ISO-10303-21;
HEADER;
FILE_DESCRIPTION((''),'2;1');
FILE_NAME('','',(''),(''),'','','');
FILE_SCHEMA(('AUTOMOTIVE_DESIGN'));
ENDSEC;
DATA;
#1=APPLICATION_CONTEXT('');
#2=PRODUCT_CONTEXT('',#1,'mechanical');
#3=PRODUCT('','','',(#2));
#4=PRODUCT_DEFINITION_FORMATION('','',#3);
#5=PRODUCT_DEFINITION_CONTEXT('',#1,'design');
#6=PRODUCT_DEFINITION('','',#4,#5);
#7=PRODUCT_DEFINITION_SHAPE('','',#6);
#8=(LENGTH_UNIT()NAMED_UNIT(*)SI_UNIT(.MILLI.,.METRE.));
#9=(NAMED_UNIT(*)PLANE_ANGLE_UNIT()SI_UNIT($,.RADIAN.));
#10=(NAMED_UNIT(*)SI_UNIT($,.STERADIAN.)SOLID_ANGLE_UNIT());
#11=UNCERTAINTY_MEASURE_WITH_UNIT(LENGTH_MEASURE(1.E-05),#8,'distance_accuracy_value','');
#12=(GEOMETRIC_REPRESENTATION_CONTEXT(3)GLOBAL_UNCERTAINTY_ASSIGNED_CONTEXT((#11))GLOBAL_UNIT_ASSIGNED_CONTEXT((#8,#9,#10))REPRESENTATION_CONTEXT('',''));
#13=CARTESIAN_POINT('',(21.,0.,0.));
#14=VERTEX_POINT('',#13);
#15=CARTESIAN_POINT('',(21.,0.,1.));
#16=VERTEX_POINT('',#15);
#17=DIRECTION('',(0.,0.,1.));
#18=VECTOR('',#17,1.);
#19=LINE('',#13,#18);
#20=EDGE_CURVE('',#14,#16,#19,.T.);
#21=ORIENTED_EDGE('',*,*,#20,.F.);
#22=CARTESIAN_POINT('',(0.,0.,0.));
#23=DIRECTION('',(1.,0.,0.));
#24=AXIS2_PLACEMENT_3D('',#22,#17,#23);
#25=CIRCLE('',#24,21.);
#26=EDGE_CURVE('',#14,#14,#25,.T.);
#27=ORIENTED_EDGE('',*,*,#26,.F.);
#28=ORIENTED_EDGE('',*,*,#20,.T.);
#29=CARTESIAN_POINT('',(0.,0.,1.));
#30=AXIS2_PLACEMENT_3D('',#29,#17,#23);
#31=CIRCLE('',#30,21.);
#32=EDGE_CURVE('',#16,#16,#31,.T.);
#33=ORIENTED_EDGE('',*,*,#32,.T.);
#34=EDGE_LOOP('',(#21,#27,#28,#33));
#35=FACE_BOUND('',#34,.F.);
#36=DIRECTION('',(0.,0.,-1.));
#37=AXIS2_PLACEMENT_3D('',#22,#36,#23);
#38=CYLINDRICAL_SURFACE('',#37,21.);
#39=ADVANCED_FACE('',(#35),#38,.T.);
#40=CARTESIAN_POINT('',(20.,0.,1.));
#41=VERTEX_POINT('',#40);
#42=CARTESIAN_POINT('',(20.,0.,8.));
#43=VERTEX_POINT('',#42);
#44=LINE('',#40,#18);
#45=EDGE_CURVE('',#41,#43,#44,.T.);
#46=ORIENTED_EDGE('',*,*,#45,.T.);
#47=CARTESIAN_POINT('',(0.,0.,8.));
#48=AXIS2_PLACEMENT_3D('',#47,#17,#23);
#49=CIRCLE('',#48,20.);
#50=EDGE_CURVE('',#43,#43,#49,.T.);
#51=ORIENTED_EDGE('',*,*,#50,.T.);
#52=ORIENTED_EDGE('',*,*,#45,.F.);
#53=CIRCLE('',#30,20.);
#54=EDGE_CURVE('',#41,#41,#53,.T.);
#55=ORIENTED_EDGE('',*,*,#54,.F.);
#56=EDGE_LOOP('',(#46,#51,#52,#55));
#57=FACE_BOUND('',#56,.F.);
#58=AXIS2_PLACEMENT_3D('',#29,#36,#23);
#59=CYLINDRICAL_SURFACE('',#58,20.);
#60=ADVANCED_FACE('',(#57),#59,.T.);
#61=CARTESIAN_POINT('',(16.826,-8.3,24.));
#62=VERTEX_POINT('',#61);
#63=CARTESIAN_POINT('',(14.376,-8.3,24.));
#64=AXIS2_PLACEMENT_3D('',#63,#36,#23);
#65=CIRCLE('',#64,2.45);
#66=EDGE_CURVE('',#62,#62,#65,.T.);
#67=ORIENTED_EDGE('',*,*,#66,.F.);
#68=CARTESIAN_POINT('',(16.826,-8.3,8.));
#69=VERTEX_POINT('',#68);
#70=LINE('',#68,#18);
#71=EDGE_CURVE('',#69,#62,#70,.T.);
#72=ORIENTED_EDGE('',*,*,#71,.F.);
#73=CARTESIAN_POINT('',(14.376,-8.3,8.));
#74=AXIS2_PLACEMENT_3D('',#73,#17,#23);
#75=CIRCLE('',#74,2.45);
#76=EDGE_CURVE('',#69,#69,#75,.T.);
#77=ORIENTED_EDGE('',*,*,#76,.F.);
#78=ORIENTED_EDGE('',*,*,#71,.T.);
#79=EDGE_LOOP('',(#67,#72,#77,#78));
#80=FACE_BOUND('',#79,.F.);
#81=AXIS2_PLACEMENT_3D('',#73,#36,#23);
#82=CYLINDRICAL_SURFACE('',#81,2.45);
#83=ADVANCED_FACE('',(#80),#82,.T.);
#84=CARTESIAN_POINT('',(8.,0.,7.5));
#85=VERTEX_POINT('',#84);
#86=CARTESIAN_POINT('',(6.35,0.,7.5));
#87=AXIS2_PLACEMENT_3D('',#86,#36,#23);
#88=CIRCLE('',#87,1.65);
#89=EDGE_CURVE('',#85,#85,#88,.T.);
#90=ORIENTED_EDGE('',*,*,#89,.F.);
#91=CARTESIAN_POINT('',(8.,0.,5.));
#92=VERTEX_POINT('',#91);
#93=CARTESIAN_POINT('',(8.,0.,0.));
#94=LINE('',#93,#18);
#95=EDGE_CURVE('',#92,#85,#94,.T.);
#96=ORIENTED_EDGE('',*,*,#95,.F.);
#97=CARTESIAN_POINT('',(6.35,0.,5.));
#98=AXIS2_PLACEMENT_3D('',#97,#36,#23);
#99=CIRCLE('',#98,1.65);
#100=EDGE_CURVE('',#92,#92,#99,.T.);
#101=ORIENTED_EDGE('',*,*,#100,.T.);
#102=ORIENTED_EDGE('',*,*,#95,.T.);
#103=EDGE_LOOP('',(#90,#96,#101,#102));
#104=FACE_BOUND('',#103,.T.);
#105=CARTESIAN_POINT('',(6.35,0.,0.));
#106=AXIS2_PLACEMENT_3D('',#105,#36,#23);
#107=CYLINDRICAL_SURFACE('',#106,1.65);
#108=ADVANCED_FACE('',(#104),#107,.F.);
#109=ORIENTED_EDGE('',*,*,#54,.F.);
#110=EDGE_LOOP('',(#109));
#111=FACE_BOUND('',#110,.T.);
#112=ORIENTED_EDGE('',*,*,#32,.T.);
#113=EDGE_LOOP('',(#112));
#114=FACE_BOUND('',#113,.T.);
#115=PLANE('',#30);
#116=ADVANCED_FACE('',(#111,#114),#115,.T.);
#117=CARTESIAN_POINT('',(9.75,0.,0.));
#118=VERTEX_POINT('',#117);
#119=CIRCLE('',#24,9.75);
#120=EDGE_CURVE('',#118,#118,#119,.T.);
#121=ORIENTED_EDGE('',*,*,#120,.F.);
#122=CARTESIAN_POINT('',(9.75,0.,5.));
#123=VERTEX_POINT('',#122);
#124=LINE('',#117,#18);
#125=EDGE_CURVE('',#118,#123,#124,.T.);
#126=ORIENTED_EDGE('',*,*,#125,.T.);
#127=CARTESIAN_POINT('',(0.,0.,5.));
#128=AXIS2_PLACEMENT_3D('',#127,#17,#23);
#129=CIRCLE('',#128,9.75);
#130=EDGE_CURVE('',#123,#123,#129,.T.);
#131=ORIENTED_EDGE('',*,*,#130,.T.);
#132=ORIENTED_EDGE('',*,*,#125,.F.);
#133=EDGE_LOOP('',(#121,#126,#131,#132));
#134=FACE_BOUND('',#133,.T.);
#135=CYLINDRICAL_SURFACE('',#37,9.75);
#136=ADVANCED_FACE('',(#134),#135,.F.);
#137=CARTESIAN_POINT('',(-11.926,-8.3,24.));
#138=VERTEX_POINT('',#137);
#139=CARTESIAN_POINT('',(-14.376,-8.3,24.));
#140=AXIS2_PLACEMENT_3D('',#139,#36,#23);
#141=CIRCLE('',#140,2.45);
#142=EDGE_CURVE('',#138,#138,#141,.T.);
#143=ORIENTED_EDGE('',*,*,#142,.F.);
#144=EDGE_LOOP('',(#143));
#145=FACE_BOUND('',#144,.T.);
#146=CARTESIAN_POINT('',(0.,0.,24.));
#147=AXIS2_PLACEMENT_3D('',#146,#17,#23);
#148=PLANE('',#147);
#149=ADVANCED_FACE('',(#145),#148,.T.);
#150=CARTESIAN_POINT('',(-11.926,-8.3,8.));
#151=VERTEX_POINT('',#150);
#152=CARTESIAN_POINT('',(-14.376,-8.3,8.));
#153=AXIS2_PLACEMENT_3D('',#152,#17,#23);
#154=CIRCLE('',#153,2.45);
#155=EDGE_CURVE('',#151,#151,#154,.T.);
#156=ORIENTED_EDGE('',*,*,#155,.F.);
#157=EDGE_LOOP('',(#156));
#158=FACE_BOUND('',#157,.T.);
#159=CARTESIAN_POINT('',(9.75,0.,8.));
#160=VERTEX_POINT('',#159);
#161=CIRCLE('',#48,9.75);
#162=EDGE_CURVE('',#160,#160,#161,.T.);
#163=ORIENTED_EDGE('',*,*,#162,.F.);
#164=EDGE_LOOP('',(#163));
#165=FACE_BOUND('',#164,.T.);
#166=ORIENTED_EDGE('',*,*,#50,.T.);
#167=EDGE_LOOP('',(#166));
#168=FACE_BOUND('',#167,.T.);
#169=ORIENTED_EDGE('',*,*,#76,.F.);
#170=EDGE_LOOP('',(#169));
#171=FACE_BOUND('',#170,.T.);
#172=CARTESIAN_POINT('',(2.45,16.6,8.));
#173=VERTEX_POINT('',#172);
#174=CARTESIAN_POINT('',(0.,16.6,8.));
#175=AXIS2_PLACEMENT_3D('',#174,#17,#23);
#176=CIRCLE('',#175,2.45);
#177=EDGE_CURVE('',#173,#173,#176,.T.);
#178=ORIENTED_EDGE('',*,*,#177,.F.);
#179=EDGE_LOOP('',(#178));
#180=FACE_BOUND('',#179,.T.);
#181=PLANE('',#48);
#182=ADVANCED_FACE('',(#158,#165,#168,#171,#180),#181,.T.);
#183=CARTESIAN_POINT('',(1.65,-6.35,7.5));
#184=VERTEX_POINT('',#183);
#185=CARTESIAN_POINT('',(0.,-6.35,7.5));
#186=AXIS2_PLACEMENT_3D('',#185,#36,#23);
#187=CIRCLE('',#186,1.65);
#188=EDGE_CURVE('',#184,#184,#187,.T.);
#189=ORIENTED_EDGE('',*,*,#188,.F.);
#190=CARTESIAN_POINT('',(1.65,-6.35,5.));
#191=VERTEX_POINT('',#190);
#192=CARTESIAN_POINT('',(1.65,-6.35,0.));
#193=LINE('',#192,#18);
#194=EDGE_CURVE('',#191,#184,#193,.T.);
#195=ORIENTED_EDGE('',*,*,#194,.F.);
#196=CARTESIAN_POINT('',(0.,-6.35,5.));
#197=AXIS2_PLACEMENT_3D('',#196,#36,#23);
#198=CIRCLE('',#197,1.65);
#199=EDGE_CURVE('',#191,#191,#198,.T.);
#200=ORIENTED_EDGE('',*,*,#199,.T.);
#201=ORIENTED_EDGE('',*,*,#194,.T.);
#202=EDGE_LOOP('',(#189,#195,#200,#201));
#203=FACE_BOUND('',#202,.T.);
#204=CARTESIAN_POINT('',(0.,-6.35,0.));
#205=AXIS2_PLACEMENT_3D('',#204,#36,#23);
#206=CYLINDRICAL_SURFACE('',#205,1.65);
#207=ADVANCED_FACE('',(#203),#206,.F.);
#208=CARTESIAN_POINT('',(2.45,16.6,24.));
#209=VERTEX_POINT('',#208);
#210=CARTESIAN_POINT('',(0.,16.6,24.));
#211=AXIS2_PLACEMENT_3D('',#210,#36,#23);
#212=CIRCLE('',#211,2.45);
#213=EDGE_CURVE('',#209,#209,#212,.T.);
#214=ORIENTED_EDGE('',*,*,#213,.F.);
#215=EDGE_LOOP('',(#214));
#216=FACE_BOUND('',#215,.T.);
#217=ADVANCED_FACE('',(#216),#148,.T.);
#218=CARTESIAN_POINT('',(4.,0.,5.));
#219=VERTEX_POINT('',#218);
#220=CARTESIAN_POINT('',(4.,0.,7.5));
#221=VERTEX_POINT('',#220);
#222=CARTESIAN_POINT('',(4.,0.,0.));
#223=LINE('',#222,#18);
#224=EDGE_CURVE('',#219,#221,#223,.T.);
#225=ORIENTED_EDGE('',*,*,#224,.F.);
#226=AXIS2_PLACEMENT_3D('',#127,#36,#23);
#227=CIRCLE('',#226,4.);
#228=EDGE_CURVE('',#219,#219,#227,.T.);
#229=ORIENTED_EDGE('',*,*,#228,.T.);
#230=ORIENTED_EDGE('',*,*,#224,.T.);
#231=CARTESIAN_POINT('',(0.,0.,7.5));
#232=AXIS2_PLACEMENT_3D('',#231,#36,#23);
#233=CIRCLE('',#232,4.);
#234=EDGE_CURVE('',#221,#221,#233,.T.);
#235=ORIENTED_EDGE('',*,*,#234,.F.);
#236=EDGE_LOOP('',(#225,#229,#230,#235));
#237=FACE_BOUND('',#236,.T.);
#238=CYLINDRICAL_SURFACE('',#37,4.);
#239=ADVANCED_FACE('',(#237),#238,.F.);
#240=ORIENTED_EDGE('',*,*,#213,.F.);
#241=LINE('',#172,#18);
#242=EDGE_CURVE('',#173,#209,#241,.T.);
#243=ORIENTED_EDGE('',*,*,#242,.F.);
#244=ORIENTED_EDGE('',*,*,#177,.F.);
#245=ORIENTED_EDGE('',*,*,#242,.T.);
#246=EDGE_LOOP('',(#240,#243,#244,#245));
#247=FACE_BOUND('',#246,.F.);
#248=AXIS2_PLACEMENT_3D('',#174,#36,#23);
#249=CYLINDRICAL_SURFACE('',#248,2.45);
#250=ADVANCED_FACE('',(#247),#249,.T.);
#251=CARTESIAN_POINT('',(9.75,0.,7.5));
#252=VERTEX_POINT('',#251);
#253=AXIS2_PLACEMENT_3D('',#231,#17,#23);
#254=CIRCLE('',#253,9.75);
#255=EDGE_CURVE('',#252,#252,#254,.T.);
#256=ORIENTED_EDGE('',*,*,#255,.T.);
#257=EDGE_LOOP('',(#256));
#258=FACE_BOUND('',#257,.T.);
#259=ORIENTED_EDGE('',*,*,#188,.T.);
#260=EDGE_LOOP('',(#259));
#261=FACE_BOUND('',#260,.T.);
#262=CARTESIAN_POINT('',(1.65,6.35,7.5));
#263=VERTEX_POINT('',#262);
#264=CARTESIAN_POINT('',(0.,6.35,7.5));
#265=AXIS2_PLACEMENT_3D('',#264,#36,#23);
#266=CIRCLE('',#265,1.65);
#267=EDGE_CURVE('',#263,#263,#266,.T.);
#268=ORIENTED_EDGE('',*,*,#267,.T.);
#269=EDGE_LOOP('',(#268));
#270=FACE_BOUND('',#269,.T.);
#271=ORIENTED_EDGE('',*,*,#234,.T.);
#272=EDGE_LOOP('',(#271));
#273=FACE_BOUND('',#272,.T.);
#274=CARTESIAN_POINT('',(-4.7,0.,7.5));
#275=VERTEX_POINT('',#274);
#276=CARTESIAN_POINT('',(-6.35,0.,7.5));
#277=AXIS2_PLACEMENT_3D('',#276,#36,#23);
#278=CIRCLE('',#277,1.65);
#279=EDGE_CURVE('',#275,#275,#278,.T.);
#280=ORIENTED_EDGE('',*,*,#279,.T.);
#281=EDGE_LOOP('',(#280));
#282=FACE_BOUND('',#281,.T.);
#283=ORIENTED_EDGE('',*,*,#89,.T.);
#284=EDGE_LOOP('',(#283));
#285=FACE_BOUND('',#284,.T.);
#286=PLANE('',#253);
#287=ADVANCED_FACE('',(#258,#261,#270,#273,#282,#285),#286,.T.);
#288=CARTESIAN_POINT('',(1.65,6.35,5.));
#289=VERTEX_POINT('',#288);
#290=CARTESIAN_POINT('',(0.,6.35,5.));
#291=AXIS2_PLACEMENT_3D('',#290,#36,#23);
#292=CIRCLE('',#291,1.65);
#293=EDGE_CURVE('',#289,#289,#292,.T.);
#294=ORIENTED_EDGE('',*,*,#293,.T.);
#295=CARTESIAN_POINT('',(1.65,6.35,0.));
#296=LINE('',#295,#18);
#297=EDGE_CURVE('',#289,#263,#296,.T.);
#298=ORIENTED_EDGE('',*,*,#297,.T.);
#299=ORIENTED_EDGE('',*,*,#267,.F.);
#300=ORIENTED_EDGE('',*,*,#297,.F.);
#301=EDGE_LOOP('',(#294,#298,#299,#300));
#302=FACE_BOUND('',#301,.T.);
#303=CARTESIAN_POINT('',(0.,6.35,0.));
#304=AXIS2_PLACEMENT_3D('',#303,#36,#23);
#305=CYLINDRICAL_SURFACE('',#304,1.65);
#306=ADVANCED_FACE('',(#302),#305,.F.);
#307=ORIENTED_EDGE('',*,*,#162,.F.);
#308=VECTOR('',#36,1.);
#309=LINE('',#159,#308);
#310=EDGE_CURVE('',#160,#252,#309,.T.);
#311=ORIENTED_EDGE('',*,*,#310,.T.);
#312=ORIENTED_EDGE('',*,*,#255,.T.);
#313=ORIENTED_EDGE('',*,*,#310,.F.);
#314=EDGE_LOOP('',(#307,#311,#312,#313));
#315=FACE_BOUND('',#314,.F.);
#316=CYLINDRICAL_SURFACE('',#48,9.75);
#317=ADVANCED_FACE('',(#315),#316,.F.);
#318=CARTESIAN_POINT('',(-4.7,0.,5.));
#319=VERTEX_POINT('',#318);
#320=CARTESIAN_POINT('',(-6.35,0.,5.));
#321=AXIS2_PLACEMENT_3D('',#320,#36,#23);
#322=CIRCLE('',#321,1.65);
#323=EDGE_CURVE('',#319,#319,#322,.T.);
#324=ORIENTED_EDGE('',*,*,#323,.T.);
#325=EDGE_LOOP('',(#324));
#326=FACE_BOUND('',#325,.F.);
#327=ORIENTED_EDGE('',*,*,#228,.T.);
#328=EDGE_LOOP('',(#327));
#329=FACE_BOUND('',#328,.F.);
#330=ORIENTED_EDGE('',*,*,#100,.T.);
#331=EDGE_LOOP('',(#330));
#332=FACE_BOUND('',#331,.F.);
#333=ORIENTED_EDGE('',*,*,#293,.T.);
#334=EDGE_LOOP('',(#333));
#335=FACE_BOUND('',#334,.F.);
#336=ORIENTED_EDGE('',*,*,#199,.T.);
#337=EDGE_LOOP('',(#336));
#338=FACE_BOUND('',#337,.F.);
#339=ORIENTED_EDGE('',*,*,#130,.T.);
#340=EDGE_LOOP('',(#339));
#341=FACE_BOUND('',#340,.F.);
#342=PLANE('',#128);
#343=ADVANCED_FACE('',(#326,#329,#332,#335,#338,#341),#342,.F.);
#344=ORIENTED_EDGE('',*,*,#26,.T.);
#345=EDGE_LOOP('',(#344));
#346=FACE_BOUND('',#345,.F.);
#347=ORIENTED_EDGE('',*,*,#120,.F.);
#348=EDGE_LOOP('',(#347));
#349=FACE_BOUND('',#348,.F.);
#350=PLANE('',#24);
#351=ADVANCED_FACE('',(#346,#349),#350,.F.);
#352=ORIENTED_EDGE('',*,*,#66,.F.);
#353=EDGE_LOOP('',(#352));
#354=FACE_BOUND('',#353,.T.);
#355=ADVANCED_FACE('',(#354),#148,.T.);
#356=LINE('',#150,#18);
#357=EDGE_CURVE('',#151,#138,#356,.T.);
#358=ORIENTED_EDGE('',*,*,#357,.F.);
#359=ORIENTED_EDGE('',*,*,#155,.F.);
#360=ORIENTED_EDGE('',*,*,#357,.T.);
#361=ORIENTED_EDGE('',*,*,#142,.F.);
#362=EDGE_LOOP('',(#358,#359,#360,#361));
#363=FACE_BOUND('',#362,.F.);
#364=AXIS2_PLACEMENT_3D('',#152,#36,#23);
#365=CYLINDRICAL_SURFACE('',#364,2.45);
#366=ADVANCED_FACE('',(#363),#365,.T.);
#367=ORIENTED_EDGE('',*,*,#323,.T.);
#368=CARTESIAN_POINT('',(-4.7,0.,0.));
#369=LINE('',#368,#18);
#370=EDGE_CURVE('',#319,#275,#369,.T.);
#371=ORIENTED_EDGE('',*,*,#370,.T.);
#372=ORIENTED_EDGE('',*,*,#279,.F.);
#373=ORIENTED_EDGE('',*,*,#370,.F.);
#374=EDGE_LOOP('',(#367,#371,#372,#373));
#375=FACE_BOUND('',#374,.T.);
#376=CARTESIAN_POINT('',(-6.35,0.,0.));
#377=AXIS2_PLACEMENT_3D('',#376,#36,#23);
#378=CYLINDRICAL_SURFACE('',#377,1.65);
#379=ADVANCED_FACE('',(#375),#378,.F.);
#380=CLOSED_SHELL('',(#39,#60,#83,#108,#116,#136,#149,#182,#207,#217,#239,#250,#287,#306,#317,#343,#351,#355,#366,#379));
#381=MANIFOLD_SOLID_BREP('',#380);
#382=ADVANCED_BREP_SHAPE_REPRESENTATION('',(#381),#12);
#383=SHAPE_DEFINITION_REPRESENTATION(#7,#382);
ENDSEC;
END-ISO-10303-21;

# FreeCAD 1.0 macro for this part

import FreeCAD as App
import Part
import Sketcher
Q = App.Units.Quantity

doc = App.newDocument("Part")
params = doc.addObject("Spreadsheet::Sheet", "Params")
for row, (alias, value) in enumerate([
    ("sketch1_diameter", "42 mm"),
    ("pad1_length", "1 mm"),
    ("sketch2_diameter", "40 mm"),
    ("pad2_length", "7 mm"),
    ("sketch3_diameter", "4.9 mm"),
    ("pad3_length", "16 mm"),
    ("sketch4_diameter", "19.5 mm"),
    ("pocket1_length", "5 mm"),
    ("sketch5_diameter", "8 mm"),
    ("sketch5_diameter2", "3.3 mm"),
    ("sketch6_diameter", "19.5 mm"),
    ("pocket3_length", "0.5 mm"),
], start=1):
    params.set(f"A{row}", alias)
    params.set(f"B{row}", "=" + value)
    params.setAlias(f"B{row}", alias)

body = doc.addObject("PartDesign::Body", "Body")

sketch1 = body.newObject("Sketcher::SketchObject", "Sketch")
sketch1.AttachmentSupport = (doc.getObject("XY_Plane"), [""])
sketch1.MapMode = "FlatFace"
sketch1.addGeometry(Part.Circle(App.Vector(0, 0, 0), App.Vector(0, 0, 1), 21), False)
sketch1.addConstraint([
    Sketcher.Constraint("Coincident", 0, 3, -1, 1),
    Sketcher.Constraint("Diameter", 0, Q("42 mm")),
])
sketch1.setExpression("Constraints[1]", "Params.sketch1_diameter")
pad1 = body.newObject("PartDesign::Pad", "Pad")
pad1.Profile = sketch1
pad1.setExpression("Length", "Params.pad1_length")

sketch2 = body.newObject("Sketcher::SketchObject", "Sketch001")
sketch2.AttachmentSupport = (doc.getObject("XY_Plane"), [""])
sketch2.MapMode = "FlatFace"
sketch2.AttachmentOffset = App.Placement(App.Vector(0, 0, 1), App.Rotation())
sketch2.addGeometry(Part.Circle(App.Vector(0, 0, 0), App.Vector(0, 0, 1), 20), False)
sketch2.addConstraint([
    Sketcher.Constraint("Coincident", 0, 3, -1, 1),
    Sketcher.Constraint("Diameter", 0, Q("40 mm")),
])
sketch2.setExpression("Constraints[1]", "Params.sketch2_diameter")
pad2 = body.newObject("PartDesign::Pad", "Pad001")
pad2.Profile = sketch2
pad2.setExpression("Length", "Params.pad2_length")

sketch3 = body.newObject("Sketcher::SketchObject", "Sketch002")
sketch3.AttachmentSupport = (doc.getObject("XY_Plane"), [""])
sketch3.MapMode = "FlatFace"
sketch3.AttachmentOffset = App.Placement(App.Vector(0, 0, 8), App.Rotation())
sketch3.addGeometry([
    Part.Circle(App.Vector(-14.4, -8.3, 0), App.Vector(0, 0, 1), 2.5),
    Part.Circle(App.Vector(0, 16.6, 0), App.Vector(0, 0, 1), 2.5),
    Part.Circle(App.Vector(14.4, -8.3, 0), App.Vector(0, 0, 1), 2.5),
], False)
sketch3.addConstraint([
    Sketcher.Constraint("Equal", 0, 1),
    Sketcher.Constraint("Equal", 1, 2),
    Sketcher.Constraint("Symmetric", 0, 3, 2, 3, -2),
    Sketcher.Constraint("PointOnObject", 1, 3, -2),
    Sketcher.Constraint("Diameter", 0, Q("4.9 mm")),
    Sketcher.Constraint("DistanceY", 0, 3, -1, 1, Q("8.3 mm")),
    Sketcher.Constraint("DistanceY", -1, 1, 1, 3, Q("16.6 mm")),
    Sketcher.Constraint("DistanceX", 0, 3, -1, 1, Q("14.376 mm")),
])
sketch3.setExpression("Constraints[4]", "Params.sketch3_diameter")
pad3 = body.newObject("PartDesign::Pad", "Pad002")
pad3.Profile = sketch3
pad3.setExpression("Length", "Params.pad3_length")

sketch4 = body.newObject("Sketcher::SketchObject", "Sketch003")
sketch4.AttachmentSupport = (doc.getObject("XY_Plane"), [""])
sketch4.MapMode = "FlatFace"
sketch4.addGeometry(Part.Circle(App.Vector(0, 0, 0), App.Vector(0, 0, 1), 10), False)
sketch4.addConstraint([
    Sketcher.Constraint("Coincident", 0, 3, -1, 1),
    Sketcher.Constraint("Diameter", 0, Q("19.5 mm")),
])
sketch4.setExpression("Constraints[1]", "Params.sketch4_diameter")
pocket1 = body.newObject("PartDesign::Pocket", "Pocket")
pocket1.Profile = sketch4
pocket1.setExpression("Length", "Params.pocket1_length")
pocket1.Reversed = True

sketch5 = body.newObject("Sketcher::SketchObject", "Sketch004")
sketch5.AttachmentSupport = (doc.getObject("XY_Plane"), [""])
sketch5.MapMode = "FlatFace"
sketch5.addGeometry([
    Part.Circle(App.Vector(-6.3, 0, 0), App.Vector(0, 0, 1), 1.6),
    Part.Circle(App.Vector(0, 6.3, 0), App.Vector(0, 0, 1), 1.6),
    Part.Circle(App.Vector(6.3, 0, 0), App.Vector(0, 0, 1), 1.6),
    Part.Circle(App.Vector(0, -6.3, 0), App.Vector(0, 0, 1), 1.6),
    Part.Circle(App.Vector(0, 0, 0), App.Vector(0, 0, 1), 4),
], False)
sketch5.addConstraint([
    Sketcher.Constraint("Coincident", 4, 3, -1, 1),
    Sketcher.Constraint("Equal", 0, 1),
    Sketcher.Constraint("Equal", 1, 2),
    Sketcher.Constraint("Equal", 2, 3),
    Sketcher.Constraint("Symmetric", 0, 3, 2, 3, -1, 1),
    Sketcher.Constraint("Symmetric", 1, 3, 3, 3, -1, 1),
    Sketcher.Constraint("PointOnObject", 0, 3, -1),
    Sketcher.Constraint("PointOnObject", 1, 3, -2),
    Sketcher.Constraint("Diameter", 4, Q("8 mm")),
    Sketcher.Constraint("Diameter", 0, Q("3.3 mm")),
    Sketcher.Constraint("DistanceX", 0, 3, -1, 1, Q("6.35 mm")),
    Sketcher.Constraint("DistanceY", -1, 1, 1, 3, Q("6.35 mm")),
])
sketch5.setExpression("Constraints[8]", "Params.sketch5_diameter")
sketch5.setExpression("Constraints[9]", "Params.sketch5_diameter2")
pocket2 = body.newObject("PartDesign::Pocket", "Pocket001")
pocket2.Profile = sketch5
pocket2.Type = "ThroughAll"
pocket2.Reversed = True

sketch6 = body.newObject("Sketcher::SketchObject", "Sketch005")
sketch6.AttachmentSupport = (doc.getObject("XY_Plane"), [""])
sketch6.MapMode = "FlatFace"
sketch6.AttachmentOffset = App.Placement(App.Vector(0, 0, 8), App.Rotation())
sketch6.addGeometry(Part.Circle(App.Vector(0, 0, 0), App.Vector(0, 0, 1), 10), False)
sketch6.addConstraint([
    Sketcher.Constraint("Coincident", 0, 3, -1, 1),
    Sketcher.Constraint("Diameter", 0, Q("19.5 mm")),
])
sketch6.setExpression("Constraints[1]", "Params.sketch6_diameter")
pocket3 = body.newObject("PartDesign::Pocket", "Pocket002")
pocket3.Profile = sketch6
pocket3.setExpression("Length", "Params.pocket3_length")

doc.recompute()
